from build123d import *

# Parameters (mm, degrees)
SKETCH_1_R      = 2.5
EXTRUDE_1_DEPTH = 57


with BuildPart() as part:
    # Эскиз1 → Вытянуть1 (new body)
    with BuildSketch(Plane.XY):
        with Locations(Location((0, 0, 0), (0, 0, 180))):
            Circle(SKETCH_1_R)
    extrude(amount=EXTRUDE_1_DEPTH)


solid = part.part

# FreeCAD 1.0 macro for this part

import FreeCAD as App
import Part
import Sketcher

V = App.Vector
Q = App.Units.Quantity

doc = App.newDocument("Part")
params = doc.addObject("Spreadsheet::Sheet", "Params")
for row, (alias, value) in enumerate([
    ("sketch1_diameter", "5 mm"),
    ("pad1_length", "57 mm"),
], start=1):
    params.set(f"A{row}", alias)
    params.set(f"B{row}", "=" + value)
    params.setAlias(f"B{row}", alias)

body = doc.addObject("PartDesign::Body", "Body")

# Sketch on XY plane
sketch1 = doc.addObject("Sketcher::SketchObject", "Sketch")
body.addObject(sketch1)
sketch1.AttachmentSupport = (doc.XY_Plane, [""])
sketch1.MapMode = "FlatFace"
sketch1.addGeometry(Part.Circle(V(0, 0, 0), V(0, 0, 1), 2.5), False)
sketch1.addConstraint([
    Sketcher.Constraint("Coincident", 0, 3, -1, 1),
    Sketcher.Constraint("Diameter", 0, Q("5 mm")),
])
sketch1.setExpression("Constraints[1]", "Params.sketch1_diameter")
pad1 = doc.addObject("PartDesign::Pad", "Pad")
body.addObject(pad1)
pad1.Profile = sketch1
pad1.setExpression("Length", "Params.pad1_length")

doc.recompute()
